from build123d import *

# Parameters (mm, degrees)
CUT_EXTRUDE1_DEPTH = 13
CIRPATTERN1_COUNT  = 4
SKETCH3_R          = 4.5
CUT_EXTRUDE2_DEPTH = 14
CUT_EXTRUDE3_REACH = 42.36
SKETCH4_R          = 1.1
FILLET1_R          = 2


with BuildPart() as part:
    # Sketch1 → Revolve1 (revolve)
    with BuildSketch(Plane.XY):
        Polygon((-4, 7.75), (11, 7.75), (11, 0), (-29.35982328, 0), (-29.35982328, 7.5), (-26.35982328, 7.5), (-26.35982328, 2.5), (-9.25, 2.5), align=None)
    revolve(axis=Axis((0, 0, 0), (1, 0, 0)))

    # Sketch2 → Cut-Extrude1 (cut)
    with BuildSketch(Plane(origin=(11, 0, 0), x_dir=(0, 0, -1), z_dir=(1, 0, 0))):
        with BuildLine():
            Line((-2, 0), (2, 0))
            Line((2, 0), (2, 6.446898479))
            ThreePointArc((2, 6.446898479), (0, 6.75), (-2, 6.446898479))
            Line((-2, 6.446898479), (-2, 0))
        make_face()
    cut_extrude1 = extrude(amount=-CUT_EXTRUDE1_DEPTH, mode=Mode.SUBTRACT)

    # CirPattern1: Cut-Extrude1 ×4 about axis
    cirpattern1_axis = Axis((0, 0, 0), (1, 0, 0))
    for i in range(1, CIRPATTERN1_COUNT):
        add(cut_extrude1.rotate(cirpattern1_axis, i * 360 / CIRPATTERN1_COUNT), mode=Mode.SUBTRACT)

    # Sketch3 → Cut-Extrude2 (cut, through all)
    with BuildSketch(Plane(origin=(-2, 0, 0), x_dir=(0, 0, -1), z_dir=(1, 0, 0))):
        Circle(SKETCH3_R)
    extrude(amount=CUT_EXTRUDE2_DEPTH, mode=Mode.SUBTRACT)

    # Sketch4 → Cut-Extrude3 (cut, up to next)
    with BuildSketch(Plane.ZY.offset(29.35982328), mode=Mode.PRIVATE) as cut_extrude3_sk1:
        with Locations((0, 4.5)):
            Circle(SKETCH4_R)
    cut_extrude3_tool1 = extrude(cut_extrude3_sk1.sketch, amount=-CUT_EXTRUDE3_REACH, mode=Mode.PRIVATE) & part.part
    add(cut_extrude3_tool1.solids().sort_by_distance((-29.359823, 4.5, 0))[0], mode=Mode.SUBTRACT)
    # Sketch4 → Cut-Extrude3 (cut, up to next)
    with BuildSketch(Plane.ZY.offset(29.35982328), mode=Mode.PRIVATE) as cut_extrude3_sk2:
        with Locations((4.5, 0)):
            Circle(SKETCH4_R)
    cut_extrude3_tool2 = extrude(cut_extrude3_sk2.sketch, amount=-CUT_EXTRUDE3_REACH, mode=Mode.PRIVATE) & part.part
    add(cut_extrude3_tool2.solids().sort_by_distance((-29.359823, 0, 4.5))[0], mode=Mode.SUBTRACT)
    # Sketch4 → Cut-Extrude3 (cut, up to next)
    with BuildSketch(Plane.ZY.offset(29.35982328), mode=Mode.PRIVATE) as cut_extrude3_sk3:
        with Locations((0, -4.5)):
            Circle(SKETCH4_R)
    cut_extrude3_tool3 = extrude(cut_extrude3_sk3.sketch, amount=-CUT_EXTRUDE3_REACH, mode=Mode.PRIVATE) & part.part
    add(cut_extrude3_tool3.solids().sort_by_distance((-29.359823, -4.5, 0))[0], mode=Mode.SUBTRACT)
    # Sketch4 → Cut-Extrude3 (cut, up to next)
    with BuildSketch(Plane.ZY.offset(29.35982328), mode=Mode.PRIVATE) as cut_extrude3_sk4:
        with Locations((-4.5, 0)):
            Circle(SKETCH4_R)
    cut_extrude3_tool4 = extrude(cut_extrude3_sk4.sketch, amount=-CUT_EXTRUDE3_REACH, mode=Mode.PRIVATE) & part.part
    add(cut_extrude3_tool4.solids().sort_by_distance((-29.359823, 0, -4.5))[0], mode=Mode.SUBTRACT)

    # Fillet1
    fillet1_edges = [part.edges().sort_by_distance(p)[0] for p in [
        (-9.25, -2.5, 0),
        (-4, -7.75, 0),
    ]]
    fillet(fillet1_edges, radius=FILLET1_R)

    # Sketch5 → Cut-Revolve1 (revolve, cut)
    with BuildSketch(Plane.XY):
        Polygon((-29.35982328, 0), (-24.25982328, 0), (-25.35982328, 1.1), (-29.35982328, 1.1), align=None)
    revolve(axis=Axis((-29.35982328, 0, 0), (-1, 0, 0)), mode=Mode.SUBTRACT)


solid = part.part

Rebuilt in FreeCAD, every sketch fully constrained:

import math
import FreeCAD as App
import Part
import Sketcher

V = App.Vector
Q = App.Units.Quantity


def edges_at(feature, points):
    """Names of the edges that pass closest to the given points."""
    edges = feature.Shape.Edges
    near = lambda p: min(range(len(edges)), key=lambda i: edges[i].distToShape(Part.Vertex(*p))[0])
    return sorted({f"Edge{near(p) + 1}" for p in points})


def add_polygon(sketch, points):
    """Adds a closed chain of lines whose ends are joined by coincident constraints."""
    first, n = sketch.GeometryCount, len(points)
    for a, b in zip(points, points[1:] + points[:1]):
        sketch.addGeometry(Part.LineSegment(App.Vector(*a, 0), App.Vector(*b, 0)), False)
    for i in range(n):
        sketch.addConstraint(Sketcher.Constraint("Coincident", first + i, 2, first + (i + 1) % n, 1))

doc = App.newDocument("Part")
params = doc.addObject("Spreadsheet::Sheet", "Params")
for row, (alias, value) in enumerate([
    ("sketch1_width", "15 mm"),
    ("sketch1_width2", "3 mm"),
    ("sketch1_height", "5 mm"),
    ("sketch1_height2", "7.5 mm"),
    ("sketch1_height3", "7.75 mm"),
    ("revolution_angle", "360 deg"),
    ("sketch2_height", "4 mm"),
    ("sketch2_radius", "6.75 mm"),
    ("pocket1_length", "13 mm"),
    ("sketch3_diameter", "9 mm"),
    ("sketch4_diameter", "2.2 mm"),
    ("sketch5_diameter", "2.2 mm"),
    ("sketch6_diameter", "2.2 mm"),
    ("sketch7_diameter", "2.2 mm"),
    ("fillet_radius", "2 mm"),
    ("sketch8_width", "4 mm"),
    ("sketch8_width2", "5.1 mm"),
    ("groove_angle", "360 deg"),
], start=1):
    params.set(f"A{row}", alias)
    params.set(f"B{row}", "=" + value)
    params.setAlias(f"B{row}", alias)

body = doc.addObject("PartDesign::Body", "Body")

# Sketch on XY plane
sketch1 = doc.addObject("Sketcher::SketchObject", "Sketch")
body.addObject(sketch1)
sketch1.AttachmentSupport = (doc.XY_Plane, [""])
sketch1.MapMode = "FlatFace"
add_polygon(sketch1, [(11, 7.8), (-4, 7.8), (-9.2, 2.5), (-26.4, 2.5), (-26.4, 7.5), (-29.4, 7.5), (-29.4, 0), (11, 0)])  # lines 0-7
sketch1.addConstraint(Sketcher.Constraint("Horizontal", 0))
sketch1.addConstraint(Sketcher.Constraint("Horizontal", 2))
sketch1.addConstraint(Sketcher.Constraint("Vertical", 3))
sketch1.addConstraint(Sketcher.Constraint("Horizontal", 4))
sketch1.addConstraint(Sketcher.Constraint("Vertical", 5))
sketch1.addConstraint(Sketcher.Constraint("Horizontal", 6))
sketch1.addConstraint(Sketcher.Constraint("Vertical", 7))
sketch1.addConstraint(Sketcher.Constraint("PointOnObject", 5, 2, -1))
sketch1.addConstraint(Sketcher.Constraint("DistanceX", 0, 2, 0, 1, Q("15 mm")))
sketch1.addConstraint(Sketcher.Constraint("DistanceX", 4, 2, 4, 1, Q("3 mm")))
sketch1.addConstraint(Sketcher.Constraint("DistanceY", 3, 1, 3, 2, Q("5 mm")))
sketch1.addConstraint(Sketcher.Constraint("Angle", 1, Q("-135 deg")))
sketch1.addConstraint(Sketcher.Constraint("DistanceY", 5, 2, 5, 1, Q("7.5 mm")))
sketch1.addConstraint(Sketcher.Constraint("DistanceX", 0, 2, -1, 1, Q("4 mm")))
sketch1.addConstraint(Sketcher.Constraint("DistanceY", 7, 1, 7, 2, Q("7.75 mm")))
sketch1.addConstraint(Sketcher.Constraint("DistanceX", 2, 2, 2, 1, Q("17.109823 mm")))
sketch1.setExpression("Constraints[16]", "Params.sketch1_width")
sketch1.setExpression("Constraints[17]", "Params.sketch1_width2")
sketch1.setExpression("Constraints[18]", "Params.sketch1_height")
sketch1.setExpression("Constraints[20]", "Params.sketch1_height2")
sketch1.setExpression("Constraints[22]", "Params.sketch1_height3")
revolution = doc.addObject("PartDesign::Revolution", "Revolution")
body.addObject(revolution)
revolution.Profile = sketch1
revolution.ReferenceAxis = (sketch1, ["H_Axis"])
revolution.setExpression("Angle", "Params.revolution_angle")

# Sketch on YZ plane
sketch2 = doc.addObject("Sketcher::SketchObject", "Sketch001")
body.addObject(sketch2)
sketch2.AttachmentSupport = (doc.YZ_Plane, [""])
sketch2.MapMode = "FlatFace"
sketch2.AttachmentOffset = App.Placement(V(0, 0, 11), App.Rotation())
sketch2.addGeometry(Part.LineSegment(V(0, 2, 0), V(0, -2, 0)), False)
sketch2.addGeometry(Part.LineSegment(V(0, -2, 0), V(6.4, -2, 0)), False)
sketch2.addGeometry(Part.ArcOfCircle(Part.Circle(V(0, 0, 0), V(0, 0, 1), 6.7), math.radians(-17), math.radians(17)), False)
sketch2.addGeometry(Part.LineSegment(V(6.4, 2, 0), V(0, 2, 0)), False)
sketch2.addConstraint(Sketcher.Constraint("Coincident", 0, 2, 1, 1))
sketch2.addConstraint(Sketcher.Constraint("Coincident", 1, 2, 2, 1))
sketch2.addConstraint(Sketcher.Constraint("Coincident", 2, 2, 3, 1))
sketch2.addConstraint(Sketcher.Constraint("Coincident", 3, 2, 0, 1))
sketch2.addConstraint(Sketcher.Constraint("Vertical", 0))
sketch2.addConstraint(Sketcher.Constraint("Horizontal", 1))
sketch2.addConstraint(Sketcher.Constraint("Horizontal", 3))
sketch2.addConstraint(Sketcher.Constraint("Coincident", 2, 3, -1, 1))
sketch2.addConstraint(Sketcher.Constraint("Symmetric", 0, 2, 3, 2, -1, 1))
sketch2.addConstraint(Sketcher.Constraint("DistanceY", 0, 2, 0, 1, Q("4 mm")))
sketch2.addConstraint(Sketcher.Constraint("Radius", 2, Q("6.75 mm")))
sketch2.setExpression("Constraints[9]", "Params.sketch2_height")
sketch2.setExpression("Constraints[10]", "Params.sketch2_radius")
pocket1 = doc.addObject("PartDesign::Pocket", "Pocket")
body.addObject(pocket1)
pocket1.Profile = sketch2
pocket1.setExpression("Length", "Params.pocket1_length")
doc.recompute()

polarpattern = doc.addObject("PartDesign::PolarPattern", "PolarPattern")
body.addObject(polarpattern)
polarpattern.Originals = [pocket1]
polarpattern.Axis = (doc.X_Axis, [""])
polarpattern.Angle = 360
polarpattern.Occurrences = 4
body.Tip = polarpattern

# Sketch on YZ plane
sketch3 = doc.addObject("Sketcher::SketchObject", "Sketch002")
body.addObject(sketch3)
sketch3.AttachmentSupport = (doc.YZ_Plane, [""])
sketch3.MapMode = "FlatFace"
sketch3.AttachmentOffset = App.Placement(V(0, 0, -2), App.Rotation())
sketch3.addGeometry(Part.Circle(V(0, 0, 0), V(0, 0, 1), 4.5), False)
sketch3.addConstraint(Sketcher.Constraint("Coincident", 0, 3, -1, 1))
sketch3.addConstraint(Sketcher.Constraint("Diameter", 0, Q("9 mm")))
sketch3.setExpression("Constraints[1]", "Params.sketch3_diameter")
pocket2 = doc.addObject("PartDesign::Pocket", "Pocket001")
body.addObject(pocket2)
pocket2.Profile = sketch3
pocket2.Type = "ThroughAll"
pocket2.Reversed = True

# Sketch on YZ plane
sketch4 = doc.addObject("Sketcher::SketchObject", "Sketch003")
body.addObject(sketch4)
sketch4.AttachmentSupport = (doc.YZ_Plane, [""])
sketch4.MapMode = "FlatFace"
sketch4.AttachmentOffset = App.Placement(V(0, 0, -29.359823), App.Rotation())
sketch4.addGeometry(Part.Circle(V(4.5, 0, 0), V(0, 0, 1), 1.1), False)
sketch4.addConstraint(Sketcher.Constraint("PointOnObject", 0, 3, -1))
sketch4.addConstraint(Sketcher.Constraint("Diameter", 0, Q("2.2 mm")))
sketch4.addConstraint(Sketcher.Constraint("DistanceX", -1, 1, 0, 3, Q("4.5 mm")))
sketch4.setExpression("Constraints[1]", "Params.sketch4_diameter")
pocket3 = doc.addObject("PartDesign::Pocket", "Pocket002")
body.addObject(pocket3)
pocket3.Profile = sketch4
pocket3.Type = "UpToFirst"
pocket3.Reversed = True

# Sketch on YZ plane
sketch5 = doc.addObject("Sketcher::SketchObject", "Sketch004")
body.addObject(sketch5)
sketch5.AttachmentSupport = (doc.YZ_Plane, [""])
sketch5.MapMode = "FlatFace"
sketch5.AttachmentOffset = App.Placement(V(0, 0, -29.359823), App.Rotation())
sketch5.addGeometry(Part.Circle(V(0, 4.5, 0), V(0, 0, 1), 1.1), False)
sketch5.addConstraint(Sketcher.Constraint("PointOnObject", 0, 3, -2))
sketch5.addConstraint(Sketcher.Constraint("Diameter", 0, Q("2.2 mm")))
sketch5.addConstraint(Sketcher.Constraint("DistanceY", -1, 1, 0, 3, Q("4.5 mm")))
sketch5.setExpression("Constraints[1]", "Params.sketch5_diameter")
pocket4 = doc.addObject("PartDesign::Pocket", "Pocket003")
body.addObject(pocket4)
pocket4.Profile = sketch5
pocket4.Type = "UpToFirst"
pocket4.Reversed = True

# Sketch on YZ plane
sketch6 = doc.addObject("Sketcher::SketchObject", "Sketch005")
body.addObject(sketch6)
sketch6.AttachmentSupport = (doc.YZ_Plane, [""])
sketch6.MapMode = "FlatFace"
sketch6.AttachmentOffset = App.Placement(V(0, 0, -29.359823), App.Rotation())
sketch6.addGeometry(Part.Circle(V(-4.5, 0, 0), V(0, 0, 1), 1.1), False)
sketch6.addConstraint(Sketcher.Constraint("PointOnObject", 0, 3, -1))
sketch6.addConstraint(Sketcher.Constraint("Diameter", 0, Q("2.2 mm")))
sketch6.addConstraint(Sketcher.Constraint("DistanceX", 0, 3, -1, 1, Q("4.5 mm")))
sketch6.setExpression("Constraints[1]", "Params.sketch6_diameter")
pocket5 = doc.addObject("PartDesign::Pocket", "Pocket004")
body.addObject(pocket5)
pocket5.Profile = sketch6
pocket5.Type = "UpToFirst"
pocket5.Reversed = True

# Sketch on YZ plane
sketch7 = doc.addObject("Sketcher::SketchObject", "Sketch006")
body.addObject(sketch7)
sketch7.AttachmentSupport = (doc.YZ_Plane, [""])
sketch7.MapMode = "FlatFace"
sketch7.AttachmentOffset = App.Placement(V(0, 0, -29.359823), App.Rotation())
sketch7.addGeometry(Part.Circle(V(0, -4.5, 0), V(0, 0, 1), 1.1), False)
sketch7.addConstraint(Sketcher.Constraint("PointOnObject", 0, 3, -2))
sketch7.addConstraint(Sketcher.Constraint("Diameter", 0, Q("2.2 mm")))
sketch7.addConstraint(Sketcher.Constraint("DistanceY", 0, 3, -1, 1, Q("4.5 mm")))
sketch7.setExpression("Constraints[1]", "Params.sketch7_diameter")
pocket6 = doc.addObject("PartDesign::Pocket", "Pocket005")
body.addObject(pocket6)
pocket6.Profile = sketch7
pocket6.Type = "UpToFirst"
pocket6.Reversed = True
doc.recompute()

fillet = doc.addObject("PartDesign::Fillet", "Fillet")
body.addObject(fillet)
fillet.Base = (pocket6, edges_at(pocket6, [(-9.25, -2.5, 0), (-4, -7.75, 0)]))
fillet.setExpression("Radius", "Params.fillet_radius")

# Sketch on XY plane
sketch8 = doc.addObject("Sketcher::SketchObject", "Sketch007")
body.addObject(sketch8)
sketch8.AttachmentSupport = (doc.XY_Plane, [""])
sketch8.MapMode = "FlatFace"
add_polygon(sketch8, [(-29.4, 0), (-24.3, 0), (-25.4, 1.1), (-29.4, 1.1)])  # lines 0-3
sketch8.addConstraint(Sketcher.Constraint("Horizontal", 0))
sketch8.addConstraint(Sketcher.Constraint("Horizontal", 2))
sketch8.addConstraint(Sketcher.Constraint("Vertical", 3))
sketch8.addConstraint(Sketcher.Constraint("PointOnObject", 0, 2, -1))
sketch8.addConstraint(Sketcher.Constraint("DistanceX", 2, 2, 2, 1, Q("4 mm")))
sketch8.addConstraint(Sketcher.Constraint("Angle", 1, Q("135 deg")))
sketch8.addConstraint(Sketcher.Constraint("DistanceX", 0, 1, 0, 2, Q("5.1 mm")))
sketch8.addConstraint(Sketcher.Constraint("DistanceX", 0, 2, -1, 1, Q("24.259823 mm")))
sketch8.setExpression("Constraints[8]", "Params.sketch8_width")
sketch8.setExpression("Constraints[10]", "Params.sketch8_width2")
groove = doc.addObject("PartDesign::Groove", "Groove")
body.addObject(groove)
groove.Profile = sketch8
groove.ReferenceAxis = (sketch8, ["H_Axis"])
groove.setExpression("Angle", "Params.groove_angle")

doc.recompute()
